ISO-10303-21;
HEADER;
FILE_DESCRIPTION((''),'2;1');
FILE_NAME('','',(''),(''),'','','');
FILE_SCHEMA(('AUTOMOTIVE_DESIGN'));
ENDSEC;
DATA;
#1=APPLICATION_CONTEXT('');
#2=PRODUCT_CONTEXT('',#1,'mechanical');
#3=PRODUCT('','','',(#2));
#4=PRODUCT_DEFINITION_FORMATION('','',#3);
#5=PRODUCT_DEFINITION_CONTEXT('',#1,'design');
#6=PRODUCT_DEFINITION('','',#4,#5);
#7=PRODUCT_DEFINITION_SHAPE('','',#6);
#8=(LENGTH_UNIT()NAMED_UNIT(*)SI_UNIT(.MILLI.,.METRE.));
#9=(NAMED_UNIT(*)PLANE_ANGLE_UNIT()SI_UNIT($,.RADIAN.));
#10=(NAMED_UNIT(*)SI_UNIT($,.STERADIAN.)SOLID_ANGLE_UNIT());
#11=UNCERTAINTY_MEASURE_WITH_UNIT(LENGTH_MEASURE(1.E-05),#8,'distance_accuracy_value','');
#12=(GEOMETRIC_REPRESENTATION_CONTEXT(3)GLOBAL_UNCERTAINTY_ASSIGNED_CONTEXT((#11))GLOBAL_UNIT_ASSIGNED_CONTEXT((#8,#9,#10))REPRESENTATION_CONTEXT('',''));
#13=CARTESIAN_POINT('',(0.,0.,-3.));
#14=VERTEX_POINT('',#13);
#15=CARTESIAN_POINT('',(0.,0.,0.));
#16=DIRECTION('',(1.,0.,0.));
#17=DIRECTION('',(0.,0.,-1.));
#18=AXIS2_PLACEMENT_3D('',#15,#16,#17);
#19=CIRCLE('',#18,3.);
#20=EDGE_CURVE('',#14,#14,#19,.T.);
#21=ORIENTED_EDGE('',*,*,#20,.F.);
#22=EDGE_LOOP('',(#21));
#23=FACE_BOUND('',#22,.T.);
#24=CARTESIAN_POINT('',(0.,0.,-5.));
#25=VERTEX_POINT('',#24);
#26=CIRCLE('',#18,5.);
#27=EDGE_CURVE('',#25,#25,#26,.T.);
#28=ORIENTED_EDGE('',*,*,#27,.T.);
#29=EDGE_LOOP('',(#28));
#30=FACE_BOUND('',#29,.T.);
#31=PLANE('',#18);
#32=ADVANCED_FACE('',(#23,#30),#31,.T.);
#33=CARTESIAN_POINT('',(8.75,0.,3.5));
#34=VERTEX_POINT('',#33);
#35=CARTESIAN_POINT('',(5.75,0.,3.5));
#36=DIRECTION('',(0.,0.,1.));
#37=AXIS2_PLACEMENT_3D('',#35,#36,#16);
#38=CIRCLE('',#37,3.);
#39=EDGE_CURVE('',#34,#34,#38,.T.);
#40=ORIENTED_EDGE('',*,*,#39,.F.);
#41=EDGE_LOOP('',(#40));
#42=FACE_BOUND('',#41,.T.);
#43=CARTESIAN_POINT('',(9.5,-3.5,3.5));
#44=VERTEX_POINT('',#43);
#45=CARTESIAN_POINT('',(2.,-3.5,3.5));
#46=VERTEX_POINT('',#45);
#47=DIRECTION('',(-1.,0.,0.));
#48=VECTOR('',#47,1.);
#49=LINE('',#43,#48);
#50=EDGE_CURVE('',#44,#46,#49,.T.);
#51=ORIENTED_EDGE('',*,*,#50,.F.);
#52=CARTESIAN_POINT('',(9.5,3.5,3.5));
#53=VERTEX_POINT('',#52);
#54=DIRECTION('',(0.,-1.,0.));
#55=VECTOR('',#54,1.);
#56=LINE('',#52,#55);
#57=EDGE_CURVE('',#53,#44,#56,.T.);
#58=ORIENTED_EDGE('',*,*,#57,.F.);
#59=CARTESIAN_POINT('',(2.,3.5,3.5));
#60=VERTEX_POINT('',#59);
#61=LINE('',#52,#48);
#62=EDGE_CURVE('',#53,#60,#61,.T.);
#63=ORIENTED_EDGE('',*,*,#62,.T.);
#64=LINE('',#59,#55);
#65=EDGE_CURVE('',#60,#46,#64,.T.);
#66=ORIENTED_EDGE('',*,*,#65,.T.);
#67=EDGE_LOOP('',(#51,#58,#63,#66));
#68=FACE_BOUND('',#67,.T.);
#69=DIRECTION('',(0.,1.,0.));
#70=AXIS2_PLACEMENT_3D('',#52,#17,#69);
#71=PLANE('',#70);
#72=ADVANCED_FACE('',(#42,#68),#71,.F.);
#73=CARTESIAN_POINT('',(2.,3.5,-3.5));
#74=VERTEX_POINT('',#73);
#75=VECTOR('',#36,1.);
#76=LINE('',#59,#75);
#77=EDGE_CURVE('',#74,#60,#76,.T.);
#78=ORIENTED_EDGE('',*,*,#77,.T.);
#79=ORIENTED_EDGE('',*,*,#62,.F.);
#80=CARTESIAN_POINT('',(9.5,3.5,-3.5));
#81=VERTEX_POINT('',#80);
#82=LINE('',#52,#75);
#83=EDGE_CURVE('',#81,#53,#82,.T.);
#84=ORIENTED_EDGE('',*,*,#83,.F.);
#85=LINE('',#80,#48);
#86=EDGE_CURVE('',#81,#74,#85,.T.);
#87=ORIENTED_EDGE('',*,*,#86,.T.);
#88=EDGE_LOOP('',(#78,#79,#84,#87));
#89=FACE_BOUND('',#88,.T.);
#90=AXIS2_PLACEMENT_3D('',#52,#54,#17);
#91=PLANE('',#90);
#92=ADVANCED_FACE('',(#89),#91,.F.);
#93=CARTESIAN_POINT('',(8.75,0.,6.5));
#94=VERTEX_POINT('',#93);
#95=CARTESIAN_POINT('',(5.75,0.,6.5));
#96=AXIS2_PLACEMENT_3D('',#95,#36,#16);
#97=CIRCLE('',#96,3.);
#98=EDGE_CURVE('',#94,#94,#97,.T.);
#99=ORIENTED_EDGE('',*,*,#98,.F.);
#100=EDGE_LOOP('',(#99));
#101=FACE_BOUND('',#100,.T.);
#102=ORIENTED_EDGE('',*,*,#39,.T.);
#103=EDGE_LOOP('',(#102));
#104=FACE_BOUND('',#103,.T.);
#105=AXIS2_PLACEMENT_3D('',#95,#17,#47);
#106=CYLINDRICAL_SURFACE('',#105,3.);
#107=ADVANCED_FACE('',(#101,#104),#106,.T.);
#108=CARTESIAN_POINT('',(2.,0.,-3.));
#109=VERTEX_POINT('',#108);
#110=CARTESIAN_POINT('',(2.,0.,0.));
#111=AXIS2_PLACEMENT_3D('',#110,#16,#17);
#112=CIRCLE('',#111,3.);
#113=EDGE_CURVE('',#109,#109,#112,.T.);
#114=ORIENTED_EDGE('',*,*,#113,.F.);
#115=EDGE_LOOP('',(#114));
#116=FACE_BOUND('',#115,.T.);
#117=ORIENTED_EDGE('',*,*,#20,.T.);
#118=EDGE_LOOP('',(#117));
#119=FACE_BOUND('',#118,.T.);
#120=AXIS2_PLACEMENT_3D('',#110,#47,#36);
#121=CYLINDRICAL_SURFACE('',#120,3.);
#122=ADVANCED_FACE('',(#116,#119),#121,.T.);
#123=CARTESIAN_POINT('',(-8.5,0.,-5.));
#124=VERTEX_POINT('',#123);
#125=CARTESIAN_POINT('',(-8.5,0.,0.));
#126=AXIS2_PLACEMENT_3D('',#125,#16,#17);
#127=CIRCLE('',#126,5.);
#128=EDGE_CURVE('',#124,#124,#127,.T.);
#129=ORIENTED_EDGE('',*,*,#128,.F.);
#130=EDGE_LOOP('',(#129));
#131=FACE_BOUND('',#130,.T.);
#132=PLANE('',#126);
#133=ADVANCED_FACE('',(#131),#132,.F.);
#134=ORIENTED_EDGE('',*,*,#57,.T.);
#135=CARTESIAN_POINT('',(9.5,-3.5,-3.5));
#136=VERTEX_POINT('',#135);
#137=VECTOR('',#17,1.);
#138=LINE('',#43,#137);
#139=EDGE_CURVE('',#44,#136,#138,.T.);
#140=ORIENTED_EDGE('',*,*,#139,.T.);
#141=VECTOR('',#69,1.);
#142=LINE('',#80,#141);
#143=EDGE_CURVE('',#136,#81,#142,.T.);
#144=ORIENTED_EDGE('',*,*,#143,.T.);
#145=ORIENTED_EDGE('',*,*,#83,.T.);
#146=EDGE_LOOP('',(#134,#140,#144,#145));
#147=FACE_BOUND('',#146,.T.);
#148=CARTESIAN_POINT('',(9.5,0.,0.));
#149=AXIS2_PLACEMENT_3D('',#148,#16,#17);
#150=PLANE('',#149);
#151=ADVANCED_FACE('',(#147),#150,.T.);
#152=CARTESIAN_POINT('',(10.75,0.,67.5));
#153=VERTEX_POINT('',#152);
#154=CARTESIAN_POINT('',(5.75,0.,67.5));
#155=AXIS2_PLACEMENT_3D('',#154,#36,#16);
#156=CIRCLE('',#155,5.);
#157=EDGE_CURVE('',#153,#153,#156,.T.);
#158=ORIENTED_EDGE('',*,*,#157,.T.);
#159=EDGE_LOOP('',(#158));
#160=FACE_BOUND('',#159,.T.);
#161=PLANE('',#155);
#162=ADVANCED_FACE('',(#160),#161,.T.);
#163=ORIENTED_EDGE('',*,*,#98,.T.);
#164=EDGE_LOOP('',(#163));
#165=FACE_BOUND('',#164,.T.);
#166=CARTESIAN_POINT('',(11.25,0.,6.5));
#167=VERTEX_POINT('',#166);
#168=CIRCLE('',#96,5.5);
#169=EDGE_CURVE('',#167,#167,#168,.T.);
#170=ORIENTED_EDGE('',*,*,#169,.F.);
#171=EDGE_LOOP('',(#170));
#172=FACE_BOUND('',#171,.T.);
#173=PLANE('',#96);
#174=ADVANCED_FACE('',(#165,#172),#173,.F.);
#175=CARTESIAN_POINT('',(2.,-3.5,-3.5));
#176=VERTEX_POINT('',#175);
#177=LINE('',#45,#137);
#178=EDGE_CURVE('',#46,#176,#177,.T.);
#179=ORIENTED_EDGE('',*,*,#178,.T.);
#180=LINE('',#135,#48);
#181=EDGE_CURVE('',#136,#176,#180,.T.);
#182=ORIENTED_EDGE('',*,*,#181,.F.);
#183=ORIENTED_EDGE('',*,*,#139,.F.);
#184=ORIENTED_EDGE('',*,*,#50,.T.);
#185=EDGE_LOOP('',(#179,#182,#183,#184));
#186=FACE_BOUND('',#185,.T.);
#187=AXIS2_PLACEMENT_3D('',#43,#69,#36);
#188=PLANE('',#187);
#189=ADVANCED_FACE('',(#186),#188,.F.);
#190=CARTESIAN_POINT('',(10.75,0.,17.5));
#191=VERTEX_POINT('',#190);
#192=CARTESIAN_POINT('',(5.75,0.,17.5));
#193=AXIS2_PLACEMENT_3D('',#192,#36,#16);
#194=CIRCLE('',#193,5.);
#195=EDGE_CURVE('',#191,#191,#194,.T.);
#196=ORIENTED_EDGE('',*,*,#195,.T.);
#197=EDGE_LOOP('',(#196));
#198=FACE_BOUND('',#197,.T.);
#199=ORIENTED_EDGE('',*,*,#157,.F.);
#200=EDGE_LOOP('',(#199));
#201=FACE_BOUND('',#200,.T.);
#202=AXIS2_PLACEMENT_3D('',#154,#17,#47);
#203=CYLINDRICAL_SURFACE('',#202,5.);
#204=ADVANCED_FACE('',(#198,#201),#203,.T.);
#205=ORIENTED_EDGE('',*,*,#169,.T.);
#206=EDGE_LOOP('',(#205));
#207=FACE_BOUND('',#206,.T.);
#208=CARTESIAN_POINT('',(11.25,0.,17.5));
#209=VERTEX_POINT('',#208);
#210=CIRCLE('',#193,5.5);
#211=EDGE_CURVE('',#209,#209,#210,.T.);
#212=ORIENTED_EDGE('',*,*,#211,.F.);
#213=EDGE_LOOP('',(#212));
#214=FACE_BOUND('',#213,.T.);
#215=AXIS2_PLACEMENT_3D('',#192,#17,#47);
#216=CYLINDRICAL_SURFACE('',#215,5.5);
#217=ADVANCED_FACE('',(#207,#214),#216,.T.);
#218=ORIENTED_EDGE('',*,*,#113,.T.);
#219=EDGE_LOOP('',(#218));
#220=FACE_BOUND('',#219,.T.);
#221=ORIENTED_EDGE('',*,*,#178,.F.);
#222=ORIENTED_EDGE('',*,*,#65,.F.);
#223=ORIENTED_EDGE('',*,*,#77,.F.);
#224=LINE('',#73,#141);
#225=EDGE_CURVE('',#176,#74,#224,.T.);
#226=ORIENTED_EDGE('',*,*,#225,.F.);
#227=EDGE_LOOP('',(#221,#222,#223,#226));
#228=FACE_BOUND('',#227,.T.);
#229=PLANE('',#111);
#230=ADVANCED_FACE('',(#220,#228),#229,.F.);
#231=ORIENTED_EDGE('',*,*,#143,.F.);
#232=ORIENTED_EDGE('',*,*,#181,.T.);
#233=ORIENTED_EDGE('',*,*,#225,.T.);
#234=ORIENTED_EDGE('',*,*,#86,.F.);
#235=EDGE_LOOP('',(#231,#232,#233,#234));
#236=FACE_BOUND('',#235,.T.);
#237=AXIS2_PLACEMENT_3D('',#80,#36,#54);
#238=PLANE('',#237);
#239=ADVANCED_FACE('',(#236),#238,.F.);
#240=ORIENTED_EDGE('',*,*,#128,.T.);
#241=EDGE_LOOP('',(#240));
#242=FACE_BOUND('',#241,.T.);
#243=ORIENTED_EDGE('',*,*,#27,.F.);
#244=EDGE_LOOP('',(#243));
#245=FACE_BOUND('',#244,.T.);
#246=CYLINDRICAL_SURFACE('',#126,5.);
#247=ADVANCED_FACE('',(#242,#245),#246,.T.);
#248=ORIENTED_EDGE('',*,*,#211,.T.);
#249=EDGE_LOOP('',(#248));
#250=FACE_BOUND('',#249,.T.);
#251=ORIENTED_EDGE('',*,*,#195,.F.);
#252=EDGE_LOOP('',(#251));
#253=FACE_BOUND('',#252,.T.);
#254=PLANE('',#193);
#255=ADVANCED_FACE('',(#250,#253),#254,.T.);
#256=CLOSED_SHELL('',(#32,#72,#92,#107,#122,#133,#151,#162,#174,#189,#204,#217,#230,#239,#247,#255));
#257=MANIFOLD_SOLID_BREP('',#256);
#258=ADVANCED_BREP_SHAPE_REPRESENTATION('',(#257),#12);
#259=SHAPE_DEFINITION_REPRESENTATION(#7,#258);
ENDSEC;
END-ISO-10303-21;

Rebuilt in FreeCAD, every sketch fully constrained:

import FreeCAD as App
import Part
import Sketcher
from FreeCAD import Vector
Q = App.Units.Quantity


def add_polygon(sketch, points):
    """Adds a closed chain of lines whose ends are joined by coincident constraints."""
    first, n = sketch.GeometryCount, len(points)
    for a, b in zip(points, points[1:] + points[:1]):
        sketch.addGeometry(Part.LineSegment(App.Vector(*a, 0), App.Vector(*b, 0)), False)
    for i in range(n):
        sketch.addConstraint(Sketcher.Constraint("Coincident", first + i, 2, first + (i + 1) % n, 1))

doc = App.newDocument("Part")
body = doc.addObject("PartDesign::Body", "Body")

# Sketch on YZ plane
sketch1 = body.newObject("Sketcher::SketchObject", "Sketch")
sketch1.AttachmentSupport = (doc.getObject("YZ_Plane"), [""])
sketch1.MapMode = "FlatFace"
sketch1.addGeometry(Part.Circle(Vector(0, 0, 0), Vector(0, 0, 1), 5), False)
sketch1.addConstraint(Sketcher.Constraint("Coincident", 0, 3, -1, 1))
sketch1.addConstraint(Sketcher.Constraint("Diameter", 0, Q("10 mm")))
pad1 = body.newObject("PartDesign::Pad", "Pad")
pad1.Profile = sketch1
pad1.Length = 8.5
pad1.Reversed = True

# Sketch on YZ plane
sketch2 = body.newObject("Sketcher::SketchObject", "Sketch001")
sketch2.AttachmentSupport = (doc.getObject("YZ_Plane"), [""])
sketch2.MapMode = "FlatFace"
sketch2.addGeometry(Part.Circle(Vector(0, 0, 0), Vector(0, 0, 1), 3), False)
sketch2.addConstraint(Sketcher.Constraint("Coincident", 0, 3, -1, 1))
sketch2.addConstraint(Sketcher.Constraint("Diameter", 0, Q("6 mm")))
pad2 = body.newObject("PartDesign::Pad", "Pad001")
pad2.Profile = sketch2
pad2.Length = 2

# Sketch on YZ plane
sketch3 = body.newObject("Sketcher::SketchObject", "Sketch002")
sketch3.AttachmentSupport = (doc.getObject("YZ_Plane"), [""])
sketch3.MapMode = "FlatFace"
sketch3.AttachmentOffset = App.Placement(Vector(0, 0, 2), App.Rotation())
add_polygon(sketch3, [(3.5, 3.5), (-3.5, 3.5), (-3.5, -3.5), (3.5, -3.5)])  # lines 0-3
sketch3.addConstraint(Sketcher.Constraint("Horizontal", 0))
sketch3.addConstraint(Sketcher.Constraint("Vertical", 1))
sketch3.addConstraint(Sketcher.Constraint("Horizontal", 2))
sketch3.addConstraint(Sketcher.Constraint("Vertical", 3))
sketch3.addConstraint(Sketcher.Constraint("Symmetric", 0, 2, 2, 2, -1, 1))
sketch3.addConstraint(Sketcher.Constraint("Equal", 2, 1))
sketch3.addConstraint(Sketcher.Constraint("DistanceX", 0, 2, 0, 1, Q("7 mm")))
pad3 = body.newObject("PartDesign::Pad", "Pad002")
pad3.Profile = sketch3
pad3.Length = 7.5

# Sketch on XY plane
sketch4 = body.newObject("Sketcher::SketchObject", "Sketch003")
sketch4.AttachmentSupport = (doc.getObject("XY_Plane"), [""])
sketch4.MapMode = "FlatFace"
sketch4.AttachmentOffset = App.Placement(Vector(0, 0, 3.5), App.Rotation())
sketch4.addGeometry(Part.Circle(Vector(5.75, 0, 0), Vector(0, 0, 1), 3), False)
sketch4.addConstraint(Sketcher.Constraint("PointOnObject", 0, 3, -1))
sketch4.addConstraint(Sketcher.Constraint("Diameter", 0, Q("6 mm")))
sketch4.addConstraint(Sketcher.Constraint("DistanceX", -1, 1, 0, 3, Q("5.75 mm")))
pad4 = body.newObject("PartDesign::Pad", "Pad003")
pad4.Profile = sketch4
pad4.Length = 3

# Sketch on XY plane
sketch5 = body.newObject("Sketcher::SketchObject", "Sketch004")
sketch5.AttachmentSupport = (doc.getObject("XY_Plane"), [""])
sketch5.MapMode = "FlatFace"
sketch5.AttachmentOffset = App.Placement(Vector(0, 0, 6.5), App.Rotation())
sketch5.addGeometry(Part.Circle(Vector(5.75, 0, 0), Vector(0, 0, 1), 5.5), False)
sketch5.addConstraint(Sketcher.Constraint("PointOnObject", 0, 3, -1))
sketch5.addConstraint(Sketcher.Constraint("Diameter", 0, Q("11 mm")))
sketch5.addConstraint(Sketcher.Constraint("DistanceX", -1, 1, 0, 3, Q("5.75 mm")))
pad5 = body.newObject("PartDesign::Pad", "Pad004")
pad5.Profile = sketch5
pad5.Length = 11

# Sketch on XY plane
sketch6 = body.newObject("Sketcher::SketchObject", "Sketch005")
sketch6.AttachmentSupport = (doc.getObject("XY_Plane"), [""])
sketch6.MapMode = "FlatFace"
sketch6.AttachmentOffset = App.Placement(Vector(0, 0, 17.5), App.Rotation())
sketch6.addGeometry(Part.Circle(Vector(5.75, 0, 0), Vector(0, 0, 1), 5), False)
sketch6.addConstraint(Sketcher.Constraint("PointOnObject", 0, 3, -1))
sketch6.addConstraint(Sketcher.Constraint("Diameter", 0, Q("10 mm")))
sketch6.addConstraint(Sketcher.Constraint("DistanceX", -1, 1, 0, 3, Q("5.75 mm")))
pad6 = body.newObject("PartDesign::Pad", "Pad005")
pad6.Profile = sketch6
pad6.Length = 50

doc.recompute()
